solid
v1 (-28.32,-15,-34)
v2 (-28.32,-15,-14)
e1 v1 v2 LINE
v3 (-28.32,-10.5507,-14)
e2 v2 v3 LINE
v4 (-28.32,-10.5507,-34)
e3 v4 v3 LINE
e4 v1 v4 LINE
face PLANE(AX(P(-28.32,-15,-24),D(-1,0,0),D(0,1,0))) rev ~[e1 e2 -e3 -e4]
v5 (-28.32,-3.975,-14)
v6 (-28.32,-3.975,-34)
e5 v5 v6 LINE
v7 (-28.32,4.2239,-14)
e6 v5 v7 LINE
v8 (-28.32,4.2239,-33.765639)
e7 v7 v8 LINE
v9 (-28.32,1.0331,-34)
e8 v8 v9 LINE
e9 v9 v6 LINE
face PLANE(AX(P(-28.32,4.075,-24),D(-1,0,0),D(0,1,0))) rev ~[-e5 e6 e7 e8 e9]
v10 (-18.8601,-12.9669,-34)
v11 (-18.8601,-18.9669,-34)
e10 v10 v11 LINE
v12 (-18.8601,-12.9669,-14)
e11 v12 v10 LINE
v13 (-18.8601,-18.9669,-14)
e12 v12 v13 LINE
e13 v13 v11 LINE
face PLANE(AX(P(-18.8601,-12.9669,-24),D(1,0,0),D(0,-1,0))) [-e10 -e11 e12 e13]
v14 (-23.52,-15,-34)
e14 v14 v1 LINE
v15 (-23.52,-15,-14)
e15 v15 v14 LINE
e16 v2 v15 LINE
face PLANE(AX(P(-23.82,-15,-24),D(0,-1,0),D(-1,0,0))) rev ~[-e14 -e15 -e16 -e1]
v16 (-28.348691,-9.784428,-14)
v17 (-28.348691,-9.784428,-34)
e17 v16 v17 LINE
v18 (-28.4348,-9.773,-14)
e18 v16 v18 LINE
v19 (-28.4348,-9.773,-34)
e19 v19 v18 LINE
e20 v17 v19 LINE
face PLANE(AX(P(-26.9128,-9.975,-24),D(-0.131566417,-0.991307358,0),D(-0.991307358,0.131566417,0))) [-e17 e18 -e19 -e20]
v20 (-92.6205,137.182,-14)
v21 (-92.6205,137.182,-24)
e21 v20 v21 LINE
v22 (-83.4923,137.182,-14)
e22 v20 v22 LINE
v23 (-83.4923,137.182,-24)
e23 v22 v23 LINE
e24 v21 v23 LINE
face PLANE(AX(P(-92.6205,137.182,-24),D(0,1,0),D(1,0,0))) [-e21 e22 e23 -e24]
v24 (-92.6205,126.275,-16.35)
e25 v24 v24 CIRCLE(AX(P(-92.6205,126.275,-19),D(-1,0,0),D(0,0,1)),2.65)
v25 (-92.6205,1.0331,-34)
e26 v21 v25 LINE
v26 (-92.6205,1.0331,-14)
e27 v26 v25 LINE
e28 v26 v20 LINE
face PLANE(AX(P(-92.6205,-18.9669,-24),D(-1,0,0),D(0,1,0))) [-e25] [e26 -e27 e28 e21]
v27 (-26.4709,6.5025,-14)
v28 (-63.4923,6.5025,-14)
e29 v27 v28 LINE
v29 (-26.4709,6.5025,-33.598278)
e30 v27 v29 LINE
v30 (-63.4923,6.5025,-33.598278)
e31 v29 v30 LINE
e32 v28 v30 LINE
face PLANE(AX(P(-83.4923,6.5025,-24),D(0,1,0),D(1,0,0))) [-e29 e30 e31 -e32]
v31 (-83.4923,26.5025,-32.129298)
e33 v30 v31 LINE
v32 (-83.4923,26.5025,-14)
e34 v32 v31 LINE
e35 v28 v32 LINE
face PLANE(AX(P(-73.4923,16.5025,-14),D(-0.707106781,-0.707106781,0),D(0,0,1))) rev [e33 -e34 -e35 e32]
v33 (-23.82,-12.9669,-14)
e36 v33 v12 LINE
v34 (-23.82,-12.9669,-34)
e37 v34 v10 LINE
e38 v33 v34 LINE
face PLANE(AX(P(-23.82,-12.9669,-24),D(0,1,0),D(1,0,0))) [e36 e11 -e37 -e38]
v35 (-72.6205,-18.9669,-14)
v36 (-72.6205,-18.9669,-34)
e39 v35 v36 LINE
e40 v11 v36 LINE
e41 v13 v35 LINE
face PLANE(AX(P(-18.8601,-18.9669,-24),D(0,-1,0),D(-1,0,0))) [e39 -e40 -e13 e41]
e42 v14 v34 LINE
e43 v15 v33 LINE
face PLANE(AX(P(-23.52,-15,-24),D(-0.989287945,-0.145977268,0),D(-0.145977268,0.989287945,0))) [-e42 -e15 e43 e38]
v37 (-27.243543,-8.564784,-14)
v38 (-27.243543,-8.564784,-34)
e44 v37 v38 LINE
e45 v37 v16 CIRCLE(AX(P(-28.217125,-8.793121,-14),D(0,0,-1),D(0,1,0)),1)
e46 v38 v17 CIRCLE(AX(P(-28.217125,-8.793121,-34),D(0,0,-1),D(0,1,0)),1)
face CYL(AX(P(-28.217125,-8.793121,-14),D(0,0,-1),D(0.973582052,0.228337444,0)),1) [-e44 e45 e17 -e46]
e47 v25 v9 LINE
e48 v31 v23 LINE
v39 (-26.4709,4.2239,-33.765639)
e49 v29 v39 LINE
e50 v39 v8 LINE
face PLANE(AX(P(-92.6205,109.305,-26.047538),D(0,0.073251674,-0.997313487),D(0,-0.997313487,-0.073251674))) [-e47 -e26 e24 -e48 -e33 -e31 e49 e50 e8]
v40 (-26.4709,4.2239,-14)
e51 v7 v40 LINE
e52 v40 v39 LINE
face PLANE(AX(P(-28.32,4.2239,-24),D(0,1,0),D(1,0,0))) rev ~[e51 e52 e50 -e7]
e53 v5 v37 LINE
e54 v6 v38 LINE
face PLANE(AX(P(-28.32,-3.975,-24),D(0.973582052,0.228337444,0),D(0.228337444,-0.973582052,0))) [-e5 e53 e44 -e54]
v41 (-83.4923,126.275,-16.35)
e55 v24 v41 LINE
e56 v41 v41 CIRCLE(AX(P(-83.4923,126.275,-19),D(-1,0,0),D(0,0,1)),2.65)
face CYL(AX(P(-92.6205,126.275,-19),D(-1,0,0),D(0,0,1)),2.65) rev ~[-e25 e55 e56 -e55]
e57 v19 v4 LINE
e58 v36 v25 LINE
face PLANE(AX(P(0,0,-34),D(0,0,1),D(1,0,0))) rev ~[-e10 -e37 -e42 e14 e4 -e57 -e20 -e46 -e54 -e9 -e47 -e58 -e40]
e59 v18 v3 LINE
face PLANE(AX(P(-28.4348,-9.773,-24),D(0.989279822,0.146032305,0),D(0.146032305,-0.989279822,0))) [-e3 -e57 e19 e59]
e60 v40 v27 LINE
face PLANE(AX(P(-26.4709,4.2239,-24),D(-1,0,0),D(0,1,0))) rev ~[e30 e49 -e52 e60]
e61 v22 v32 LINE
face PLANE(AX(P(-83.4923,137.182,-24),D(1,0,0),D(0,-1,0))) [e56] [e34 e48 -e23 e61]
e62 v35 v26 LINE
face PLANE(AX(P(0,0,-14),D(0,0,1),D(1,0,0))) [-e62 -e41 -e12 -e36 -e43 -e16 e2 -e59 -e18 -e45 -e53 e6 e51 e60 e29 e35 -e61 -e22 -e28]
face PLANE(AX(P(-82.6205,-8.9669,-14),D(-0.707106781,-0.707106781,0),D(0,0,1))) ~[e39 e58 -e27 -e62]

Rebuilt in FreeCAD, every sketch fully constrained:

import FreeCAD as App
import Part
import Sketcher
Q = App.Units.Quantity


def edges_at(feature, points):
    """Names of the edges that pass closest to the given points."""
    edges = feature.Shape.Edges
    near = lambda p: min(range(len(edges)), key=lambda i: edges[i].distToShape(Part.Vertex(*p))[0])
    return sorted({f"Edge{near(p) + 1}" for p in points})

doc = App.newDocument("Part")
body = doc.addObject("PartDesign::Body", "Body")

# Sketch on XY plane
sketch1 = body.newObject("Sketcher::SketchObject", "Sketch")
sketch1.AttachmentSupport = (doc.getObject("XY_Plane"), [""])
sketch1.MapMode = "FlatFace"
sketch1.AttachmentOffset = App.Placement(App.Vector(0, 0, -24), App.Rotation())
sketch1.addGeometry([
    Part.LineSegment(App.Vector(-23.52, -15, 0), App.Vector(-28.32, -15, 0)),  # 0
    Part.LineSegment(App.Vector(-28.32, -15, 0), App.Vector(-28.32, -10.5507, 0)),  # 1
    Part.LineSegment(App.Vector(-28.32, -10.5507, 0), App.Vector(-28.4348, -9.773, 0)),  # 2
    Part.LineSegment(App.Vector(-28.4348, -9.773, 0), App.Vector(-26.9128, -9.975, 0)),  # 3
    Part.LineSegment(App.Vector(-26.9128, -9.975, 0), App.Vector(-28.32, -3.975, 0)),  # 4
    Part.LineSegment(App.Vector(-28.32, -3.975, 0), App.Vector(-28.32, 4.2239, 0)),  # 5
    Part.LineSegment(App.Vector(-28.32, 4.2239, 0), App.Vector(-26.4709, 4.2239, 0)),  # 6
    Part.LineSegment(App.Vector(-26.4709, 4.2239, 0), App.Vector(-26.4709, 6.5025, 0)),  # 7
    Part.LineSegment(App.Vector(-26.4709, 6.5025, 0), App.Vector(-83.4923, 6.5025, 0)),  # 8
    Part.LineSegment(App.Vector(-83.4923, 6.5025, 0), App.Vector(-83.4923, 137.182, 0)),  # 9
    Part.LineSegment(App.Vector(-83.4923, 137.182, 0), App.Vector(-92.6205, 137.182, 0)),  # 10
    Part.LineSegment(App.Vector(-92.6205, 137.182, 0), App.Vector(-92.6205, -18.9669, 0)),  # 11
    Part.LineSegment(App.Vector(-92.6205, -18.9669, 0), App.Vector(-18.8601, -18.9669, 0)),  # 12
    Part.LineSegment(App.Vector(-18.8601, -18.9669, 0), App.Vector(-18.8601, -12.9669, 0)),  # 13
    Part.LineSegment(App.Vector(-18.8601, -12.9669, 0), App.Vector(-23.82, -12.9669, 0)),  # 14
    Part.LineSegment(App.Vector(-23.82, -12.9669, 0), App.Vector(-23.52, -15, 0)),  # 15
], False)
sketch1.addConstraint([
    Sketcher.Constraint("Coincident", 0, 2, 1, 1),
    Sketcher.Constraint("Coincident", 1, 2, 2, 1),
    Sketcher.Constraint("Coincident", 2, 2, 3, 1),
    Sketcher.Constraint("Coincident", 3, 2, 4, 1),
    Sketcher.Constraint("Coincident", 4, 2, 5, 1),
    Sketcher.Constraint("Coincident", 5, 2, 6, 1),
    Sketcher.Constraint("Coincident", 6, 2, 7, 1),
    Sketcher.Constraint("Coincident", 7, 2, 8, 1),
    Sketcher.Constraint("Coincident", 8, 2, 9, 1),
    Sketcher.Constraint("Coincident", 9, 2, 10, 1),
    Sketcher.Constraint("Coincident", 10, 2, 11, 1),
    Sketcher.Constraint("Coincident", 11, 2, 12, 1),
    Sketcher.Constraint("Coincident", 12, 2, 13, 1),
    Sketcher.Constraint("Coincident", 13, 2, 14, 1),
    Sketcher.Constraint("Coincident", 14, 2, 15, 1),
    Sketcher.Constraint("Coincident", 15, 2, 0, 1),
    Sketcher.Constraint("Horizontal", 0),
    Sketcher.Constraint("Vertical", 1),
    Sketcher.Constraint("Vertical", 5),
    Sketcher.Constraint("Horizontal", 6),
    Sketcher.Constraint("Vertical", 7),
    Sketcher.Constraint("Horizontal", 8),
    Sketcher.Constraint("Vertical", 9),
    Sketcher.Constraint("Horizontal", 10),
    Sketcher.Constraint("Vertical", 11),
    Sketcher.Constraint("Horizontal", 12),
    Sketcher.Constraint("Vertical", 13),
    Sketcher.Constraint("Horizontal", 14),
    Sketcher.Constraint("Parallel", 2, 15),
    Sketcher.Constraint("Vertical", 1, 2, 4, 2),
    Sketcher.Constraint("DistanceY", 13, 1, 13, 2, Q("6 mm")),
    Sketcher.Constraint("DistanceY", 3, 2, 4, 2, Q("6 mm")),
    Sketcher.Constraint("DistanceX", 14, 2, 15, 2, Q("0.3 mm")),
    Sketcher.Constraint("DistanceX", 0, 2, 0, 1, Q("4.8 mm")),
    Sketcher.Constraint("DistanceY", 0, 2, -1, 1, Q("15 mm")),
    Sketcher.Constraint("Angle", 4, Q("103.1992 deg")),
    Sketcher.Constraint("DistanceX", 14, 2, 14, 1, Q("4.96 mm")),
    Sketcher.Constraint("Angle", 3, Q("-7.56 deg")),
    Sketcher.Constraint("DistanceX", 6, 1, 6, 2, Q("1.849 mm")),
    Sketcher.Constraint("DistanceY", 5, 1, 5, 2, Q("8.199 mm")),
    Sketcher.Constraint("DistanceY", 11, 2, 11, 1, Q("156.149 mm")),
    Sketcher.Constraint("DistanceX", 0, 2, -1, 1, Q("28.32 mm")),
    Sketcher.Constraint("Distance", 15, Q("2.055 mm")),
    Sketcher.Constraint("DistanceX", 8, 2, 8, 1, Q("57.0214 mm")),
    Sketcher.Constraint("DistanceX", 10, 2, 10, 1, Q("9.1282 mm")),
    Sketcher.Constraint("DistanceY", 1, 1, 1, 2, Q("4.4493 mm")),
    Sketcher.Constraint("DistanceY", 7, 1, 7, 2, Q("2.2786 mm")),
    Sketcher.Constraint("DistanceY", 9, 1, 9, 2, Q("130.6795 mm")),
])
pad1 = body.newObject("PartDesign::Pad", "Pad")
pad1.Profile = sketch1
pad1.Length = 20
pad1.Midplane = True
doc.recompute()

fillet = body.newObject("PartDesign::Fillet", "Fillet")
fillet.Base = (pad1, edges_at(pad1, [(-26.913, -9.975, -24)]))
fillet.Radius = 1
doc.recompute()

chamfer = body.newObject("PartDesign::Chamfer", "Chamfer")
chamfer.Base = (fillet, edges_at(fillet, [(-83.492, 6.503, -24), (-92.621, -18.967, -24)]))
chamfer.Size = 20

# Sketch on YZ plane
sketch2 = body.newObject("Sketcher::SketchObject", "Sketch001")
sketch2.AttachmentSupport = (doc.getObject("YZ_Plane"), [""])
sketch2.MapMode = "FlatFace"
sketch2.AttachmentOffset = App.Placement(App.Vector(0, 0, -92.6205), App.Rotation())
sketch2.addGeometry([
    Part.LineSegment(App.Vector(137.182, -24, 0), App.Vector(137.182, -34, 0)),
    Part.LineSegment(App.Vector(137.182, -34, 0), App.Vector(1.0331, -34, 0)),
    Part.LineSegment(App.Vector(1.0331, -34, 0), App.Vector(137.182, -24, 0)),
    Part.Circle(App.Vector(126.275, -19, 0), App.Vector(0, 0, 1), 2.65),
], False)
sketch2.addConstraint([
    Sketcher.Constraint("Coincident", 0, 2, 1, 1),
    Sketcher.Constraint("Coincident", 1, 2, 2, 1),
    Sketcher.Constraint("Coincident", 2, 2, 0, 1),
    Sketcher.Constraint("Vertical", 0),
    Sketcher.Constraint("Horizontal", 1),
    Sketcher.Constraint("Diameter", 3, Q("5.3 mm")),
    Sketcher.Constraint("DistanceY", 2, 2, 3, 3, Q("5 mm")),
    Sketcher.Constraint("DistanceY", 0, 2, 0, 1, Q("10 mm")),
    Sketcher.Constraint("DistanceY", 3, 3, -1, 1, Q("19 mm")),
    Sketcher.Constraint("Angle", 2, Q("4.2008 deg")),
    Sketcher.Constraint("DistanceX", -1, 1, 3, 3, Q("126.275 mm")),
    Sketcher.Constraint("DistanceX", -1, 1, 0, 2, Q("137.182 mm")),
])
pocket1 = body.newObject("PartDesign::Pocket", "Pocket")
pocket1.Profile = sketch2
pocket1.Type = "ThroughAll"
pocket1.Reversed = True

doc.recompute()
